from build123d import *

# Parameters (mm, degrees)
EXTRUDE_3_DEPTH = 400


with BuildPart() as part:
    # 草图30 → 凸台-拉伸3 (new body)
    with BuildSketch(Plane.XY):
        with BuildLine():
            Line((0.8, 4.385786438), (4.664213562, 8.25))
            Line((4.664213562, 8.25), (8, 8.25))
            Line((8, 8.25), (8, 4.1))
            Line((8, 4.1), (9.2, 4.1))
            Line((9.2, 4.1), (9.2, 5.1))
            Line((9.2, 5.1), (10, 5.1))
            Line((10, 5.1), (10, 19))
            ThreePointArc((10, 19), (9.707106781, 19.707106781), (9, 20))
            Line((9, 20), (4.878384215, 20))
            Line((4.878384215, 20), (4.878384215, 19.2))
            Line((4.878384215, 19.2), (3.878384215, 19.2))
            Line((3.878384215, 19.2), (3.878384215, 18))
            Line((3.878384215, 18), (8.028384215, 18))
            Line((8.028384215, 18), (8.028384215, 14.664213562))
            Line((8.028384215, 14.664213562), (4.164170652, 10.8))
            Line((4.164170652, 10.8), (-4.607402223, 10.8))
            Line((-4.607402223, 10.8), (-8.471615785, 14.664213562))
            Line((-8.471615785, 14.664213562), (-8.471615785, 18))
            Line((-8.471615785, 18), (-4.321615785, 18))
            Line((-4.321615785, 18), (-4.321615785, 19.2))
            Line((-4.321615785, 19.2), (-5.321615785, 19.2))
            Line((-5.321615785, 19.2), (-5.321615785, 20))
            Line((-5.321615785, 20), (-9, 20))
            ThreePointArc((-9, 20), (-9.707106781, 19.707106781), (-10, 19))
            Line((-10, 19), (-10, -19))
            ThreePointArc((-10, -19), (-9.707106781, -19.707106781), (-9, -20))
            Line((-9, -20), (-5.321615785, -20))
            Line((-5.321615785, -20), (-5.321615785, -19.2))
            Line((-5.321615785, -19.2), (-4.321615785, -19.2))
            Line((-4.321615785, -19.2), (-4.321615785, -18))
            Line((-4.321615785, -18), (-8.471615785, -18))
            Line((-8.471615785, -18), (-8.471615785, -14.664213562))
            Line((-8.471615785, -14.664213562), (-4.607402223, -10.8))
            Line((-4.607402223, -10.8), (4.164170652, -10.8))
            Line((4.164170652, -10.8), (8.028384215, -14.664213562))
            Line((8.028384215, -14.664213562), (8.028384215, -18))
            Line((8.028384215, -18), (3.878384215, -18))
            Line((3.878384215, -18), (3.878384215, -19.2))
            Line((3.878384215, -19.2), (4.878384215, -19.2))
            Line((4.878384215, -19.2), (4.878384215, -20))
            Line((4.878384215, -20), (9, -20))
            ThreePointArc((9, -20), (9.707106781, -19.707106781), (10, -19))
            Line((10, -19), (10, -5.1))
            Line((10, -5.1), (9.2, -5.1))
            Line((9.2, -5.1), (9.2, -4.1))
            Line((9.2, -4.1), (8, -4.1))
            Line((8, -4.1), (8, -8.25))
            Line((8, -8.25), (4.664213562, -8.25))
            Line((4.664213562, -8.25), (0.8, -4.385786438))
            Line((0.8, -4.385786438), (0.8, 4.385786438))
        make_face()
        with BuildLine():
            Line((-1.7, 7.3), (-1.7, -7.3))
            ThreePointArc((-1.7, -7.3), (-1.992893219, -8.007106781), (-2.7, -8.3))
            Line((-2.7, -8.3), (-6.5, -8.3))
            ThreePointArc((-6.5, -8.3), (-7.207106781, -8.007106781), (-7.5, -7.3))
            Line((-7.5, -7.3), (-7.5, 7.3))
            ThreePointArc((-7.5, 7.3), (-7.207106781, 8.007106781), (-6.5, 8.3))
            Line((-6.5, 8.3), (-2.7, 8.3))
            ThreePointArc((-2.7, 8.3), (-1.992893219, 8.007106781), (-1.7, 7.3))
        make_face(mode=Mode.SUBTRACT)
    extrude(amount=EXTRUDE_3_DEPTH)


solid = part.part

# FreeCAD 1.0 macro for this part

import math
import FreeCAD as App
import Part
import Sketcher

doc = App.newDocument("Part")
params = doc.addObject("Spreadsheet::Sheet", "Params")
for row, (alias, value) in enumerate([
    ("sketch1_radius", "1 mm"),
    ("sketch1_width", "1 mm"),
    ("sketch1_height", "38 mm"),
    ("sketch1_width2", "1.2 mm"),
    ("sketch1_width3", "0.8 mm"),
    ("pad1_length", "400 mm"),
], start=1):
    params.set(f"A{row}", alias)
    params.set(f"B{row}", "=" + value)
    params.setAlias(f"B{row}", alias)

body = doc.addObject("PartDesign::Body", "Body")

sketch1 = body.newObject("Sketcher::SketchObject", "Sketch")
sketch1.AttachmentSupport = (doc.getObject("XY_Plane"), [""])
sketch1.MapMode = "FlatFace"
sketch1.addGeometry(Part.LineSegment(App.Vector(0.8, 4.385786, 0), App.Vector(4.664214, 8.25, 0)), False)
sketch1.addGeometry(Part.LineSegment(App.Vector(4.664214, 8.25, 0), App.Vector(8, 8.25, 0)), False)
sketch1.addGeometry(Part.LineSegment(App.Vector(8, 8.25, 0), App.Vector(8, 4.1, 0)), False)
sketch1.addGeometry(Part.LineSegment(App.Vector(8, 4.1, 0), App.Vector(9.2, 4.1, 0)), False)
sketch1.addGeometry(Part.LineSegment(App.Vector(9.2, 4.1, 0), App.Vector(9.2, 5.1, 0)), False)
sketch1.addGeometry(Part.LineSegment(App.Vector(9.2, 5.1, 0), App.Vector(10, 5.1, 0)), False)
sketch1.addGeometry(Part.LineSegment(App.Vector(10, 5.1, 0), App.Vector(10, 19, 0)), False)
sketch1.addGeometry(Part.ArcOfCircle(Part.Circle(App.Vector(9, 19, 0), App.Vector(0, 0, 1), 1), math.radians(0), math.radians(90)), False)
sketch1.addGeometry(Part.LineSegment(App.Vector(9, 20, 0), App.Vector(4.878384, 20, 0)), False)
sketch1.addGeometry(Part.LineSegment(App.Vector(4.878384, 20, 0), App.Vector(4.878384, 19.2, 0)), False)
sketch1.addGeometry(Part.LineSegment(App.Vector(4.878384, 19.2, 0), App.Vector(3.878384, 19.2, 0)), False)
sketch1.addGeometry(Part.LineSegment(App.Vector(3.878384, 19.2, 0), App.Vector(3.878384, 18, 0)), False)
sketch1.addGeometry(Part.LineSegment(App.Vector(3.878384, 18, 0), App.Vector(8.028384, 18, 0)), False)
sketch1.addGeometry(Part.LineSegment(App.Vector(8.028384, 18, 0), App.Vector(8.028384, 14.664214, 0)), False)
sketch1.addGeometry(Part.LineSegment(App.Vector(8.028384, 14.664214, 0), App.Vector(4.164171, 10.8, 0)), False)
sketch1.addGeometry(Part.LineSegment(App.Vector(4.164171, 10.8, 0), App.Vector(-4.607402, 10.8, 0)), False)
sketch1.addGeometry(Part.LineSegment(App.Vector(-4.607402, 10.8, 0), App.Vector(-8.471616, 14.664214, 0)), False)
sketch1.addGeometry(Part.LineSegment(App.Vector(-8.471616, 14.664214, 0), App.Vector(-8.471616, 18, 0)), False)
sketch1.addGeometry(Part.LineSegment(App.Vector(-8.471616, 18, 0), App.Vector(-4.321616, 18, 0)), False)
sketch1.addGeometry(Part.LineSegment(App.Vector(-4.321616, 18, 0), App.Vector(-4.321616, 19.2, 0)), False)
sketch1.addGeometry(Part.LineSegment(App.Vector(-4.321616, 19.2, 0), App.Vector(-5.321616, 19.2, 0)), False)
sketch1.addGeometry(Part.LineSegment(App.Vector(-5.321616, 19.2, 0), App.Vector(-5.321616, 20, 0)), False)
sketch1.addGeometry(Part.LineSegment(App.Vector(-5.321616, 20, 0), App.Vector(-9, 20, 0)), False)
sketch1.addGeometry(Part.ArcOfCircle(Part.Circle(App.Vector(-9, 19, 0), App.Vector(0, 0, 1), 1), math.radians(90), math.radians(180)), False)
sketch1.addGeometry(Part.LineSegment(App.Vector(-10, 19, 0), App.Vector(-10, -19, 0)), False)
sketch1.addGeometry(Part.ArcOfCircle(Part.Circle(App.Vector(-9, -19, 0), App.Vector(0, 0, 1), 1), math.radians(-180), math.radians(-90)), False)
sketch1.addGeometry(Part.LineSegment(App.Vector(-9, -20, 0), App.Vector(-5.321616, -20, 0)), False)
sketch1.addGeometry(Part.LineSegment(App.Vector(-5.321616, -20, 0), App.Vector(-5.321616, -19.2, 0)), False)
sketch1.addGeometry(Part.LineSegment(App.Vector(-5.321616, -19.2, 0), App.Vector(-4.321616, -19.2, 0)), False)
sketch1.addGeometry(Part.LineSegment(App.Vector(-4.321616, -19.2, 0), App.Vector(-4.321616, -18, 0)), False)
sketch1.addGeometry(Part.LineSegment(App.Vector(-4.321616, -18, 0), App.Vector(-8.471616, -18, 0)), False)
sketch1.addGeometry(Part.LineSegment(App.Vector(-8.471616, -18, 0), App.Vector(-8.471616, -14.664214, 0)), False)
sketch1.addGeometry(Part.LineSegment(App.Vector(-8.471616, -14.664214, 0), App.Vector(-4.607402, -10.8, 0)), False)
sketch1.addGeometry(Part.LineSegment(App.Vector(-4.607402, -10.8, 0), App.Vector(4.164171, -10.8, 0)), False)
sketch1.addGeometry(Part.LineSegment(App.Vector(4.164171, -10.8, 0), App.Vector(8.028384, -14.664214, 0)), False)
sketch1.addGeometry(Part.LineSegment(App.Vector(8.028384, -14.664214, 0), App.Vector(8.028384, -18, 0)), False)
sketch1.addGeometry(Part.LineSegment(App.Vector(8.028384, -18, 0), App.Vector(3.878384, -18, 0)), False)
sketch1.addGeometry(Part.LineSegment(App.Vector(3.878384, -18, 0), App.Vector(3.878384, -19.2, 0)), False)
sketch1.addGeometry(Part.LineSegment(App.Vector(3.878384, -19.2, 0), App.Vector(4.878384, -19.2, 0)), False)
sketch1.addGeometry(Part.LineSegment(App.Vector(4.878384, -19.2, 0), App.Vector(4.878384, -20, 0)), False)
sketch1.addGeometry(Part.LineSegment(App.Vector(4.878384, -20, 0), App.Vector(9, -20, 0)), False)
sketch1.addGeometry(Part.ArcOfCircle(Part.Circle(App.Vector(9, -19, 0), App.Vector(0, 0, 1), 1), math.radians(-90), math.radians(0)), False)
sketch1.addGeometry(Part.LineSegment(App.Vector(10, -19, 0), App.Vector(10, -5.1, 0)), False)
sketch1.addGeometry(Part.LineSegment(App.Vector(10, -5.1, 0), App.Vector(9.2, -5.1, 0)), False)
sketch1.addGeometry(Part.LineSegment(App.Vector(9.2, -5.1, 0), App.Vector(9.2, -4.1, 0)), False)
sketch1.addGeometry(Part.LineSegment(App.Vector(9.2, -4.1, 0), App.Vector(8, -4.1, 0)), False)
sketch1.addGeometry(Part.LineSegment(App.Vector(8, -4.1, 0), App.Vector(8, -8.25, 0)), False)
sketch1.addGeometry(Part.LineSegment(App.Vector(8, -8.25, 0), App.Vector(4.664214, -8.25, 0)), False)
sketch1.addGeometry(Part.LineSegment(App.Vector(4.664214, -8.25, 0), App.Vector(0.8, -4.385786, 0)), False)
sketch1.addGeometry(Part.LineSegment(App.Vector(0.8, -4.385786, 0), App.Vector(0.8, 4.385786, 0)), False)
sketch1.addGeometry(Part.ArcOfCircle(Part.Circle(App.Vector(-2.7, 7.3, 0), App.Vector(0, 0, 1), 1), math.radians(0), math.radians(90)), False)
sketch1.addGeometry(Part.LineSegment(App.Vector(-1.7, 7.3, 0), App.Vector(-1.7, -7.3, 0)), False)
sketch1.addGeometry(Part.ArcOfCircle(Part.Circle(App.Vector(-2.7, -7.3, 0), App.Vector(0, 0, 1), 1), math.radians(-90), math.radians(0)), False)
sketch1.addGeometry(Part.LineSegment(App.Vector(-2.7, -8.3, 0), App.Vector(-6.5, -8.3, 0)), False)
sketch1.addGeometry(Part.ArcOfCircle(Part.Circle(App.Vector(-6.5, -7.3, 0), App.Vector(0, 0, 1), 1), math.radians(-180), math.radians(-90)), False)
sketch1.addGeometry(Part.LineSegment(App.Vector(-7.5, -7.3, 0), App.Vector(-7.5, 7.3, 0)), False)
sketch1.addGeometry(Part.ArcOfCircle(Part.Circle(App.Vector(-6.5, 7.3, 0), App.Vector(0, 0, 1), 1), math.radians(90), math.radians(180)), False)
sketch1.addGeometry(Part.LineSegment(App.Vector(-6.5, 8.3, 0), App.Vector(-2.7, 8.3, 0)), False)
sketch1.addConstraint(Sketcher.Constraint("Coincident", 0, 2, 1, 1))
sketch1.addConstraint(Sketcher.Constraint("Coincident", 1, 2, 2, 1))
sketch1.addConstraint(Sketcher.Constraint("Coincident", 2, 2, 3, 1))
sketch1.addConstraint(Sketcher.Constraint("Coincident", 3, 2, 4, 1))
sketch1.addConstraint(Sketcher.Constraint("Coincident", 4, 2, 5, 1))
sketch1.addConstraint(Sketcher.Constraint("Coincident", 5, 2, 6, 1))
sketch1.addConstraint(Sketcher.Constraint("Tangent", 6, 2, 7, 1))
sketch1.addConstraint(Sketcher.Constraint("Tangent", 7, 2, 8, 1))
sketch1.addConstraint(Sketcher.Constraint("Coincident", 8, 2, 9, 1))
sketch1.addConstraint(Sketcher.Constraint("Coincident", 9, 2, 10, 1))
sketch1.addConstraint(Sketcher.Constraint("Coincident", 10, 2, 11, 1))
sketch1.addConstraint(Sketcher.Constraint("Coincident", 11, 2, 12, 1))
sketch1.addConstraint(Sketcher.Constraint("Coincident", 12, 2, 13, 1))
sketch1.addConstraint(Sketcher.Constraint("Coincident", 13, 2, 14, 1))
sketch1.addConstraint(Sketcher.Constraint("Coincident", 14, 2, 15, 1))
sketch1.addConstraint(Sketcher.Constraint("Coincident", 15, 2, 16, 1))
sketch1.addConstraint(Sketcher.Constraint("Coincident", 16, 2, 17, 1))
sketch1.addConstraint(Sketcher.Constraint("Coincident", 17, 2, 18, 1))
sketch1.addConstraint(Sketcher.Constraint("Coincident", 18, 2, 19, 1))
sketch1.addConstraint(Sketcher.Constraint("Coincident", 19, 2, 20, 1))
sketch1.addConstraint(Sketcher.Constraint("Coincident", 20, 2, 21, 1))
sketch1.addConstraint(Sketcher.Constraint("Coincident", 21, 2, 22, 1))
sketch1.addConstraint(Sketcher.Constraint("Tangent", 22, 2, 23, 1))
sketch1.addConstraint(Sketcher.Constraint("Tangent", 23, 2, 24, 1))
sketch1.addConstraint(Sketcher.Constraint("Tangent", 24, 2, 25, 1))
sketch1.addConstraint(Sketcher.Constraint("Tangent", 25, 2, 26, 1))
sketch1.addConstraint(Sketcher.Constraint("Coincident", 26, 2, 27, 1))
sketch1.addConstraint(Sketcher.Constraint("Coincident", 27, 2, 28, 1))
sketch1.addConstraint(Sketcher.Constraint("Coincident", 28, 2, 29, 1))
sketch1.addConstraint(Sketcher.Constraint("Coincident", 29, 2, 30, 1))
sketch1.addConstraint(Sketcher.Constraint("Coincident", 30, 2, 31, 1))
sketch1.addConstraint(Sketcher.Constraint("Coincident", 31, 2, 32, 1))
sketch1.addConstraint(Sketcher.Constraint("Coincident", 32, 2, 33, 1))
sketch1.addConstraint(Sketcher.Constraint("Coincident", 33, 2, 34, 1))
sketch1.addConstraint(Sketcher.Constraint("Coincident", 34, 2, 35, 1))
sketch1.addConstraint(Sketcher.Constraint("Coincident", 35, 2, 36, 1))
sketch1.addConstraint(Sketcher.Constraint("Coincident", 36, 2, 37, 1))
sketch1.addConstraint(Sketcher.Constraint("Coincident", 37, 2, 38, 1))
sketch1.addConstraint(Sketcher.Constraint("Coincident", 38, 2, 39, 1))
sketch1.addConstraint(Sketcher.Constraint("Coincident", 39, 2, 40, 1))
sketch1.addConstraint(Sketcher.Constraint("Tangent", 40, 2, 41, 1))
sketch1.addConstraint(Sketcher.Constraint("Tangent", 41, 2, 42, 1))
sketch1.addConstraint(Sketcher.Constraint("Coincident", 42, 2, 43, 1))
sketch1.addConstraint(Sketcher.Constraint("Coincident", 43, 2, 44, 1))
sketch1.addConstraint(Sketcher.Constraint("Coincident", 44, 2, 45, 1))
sketch1.addConstraint(Sketcher.Constraint("Coincident", 45, 2, 46, 1))
sketch1.addConstraint(Sketcher.Constraint("Coincident", 46, 2, 47, 1))
sketch1.addConstraint(Sketcher.Constraint("Coincident", 47, 2, 48, 1))
sketch1.addConstraint(Sketcher.Constraint("Coincident", 48, 2, 49, 1))
sketch1.addConstraint(Sketcher.Constraint("Coincident", 49, 2, 0, 1))
sketch1.addConstraint(Sketcher.Constraint("Tangent", 50, 1, 51, 1))
sketch1.addConstraint(Sketcher.Constraint("Tangent", 51, 2, 52, 2))
sketch1.addConstraint(Sketcher.Constraint("Tangent", 52, 1, 53, 1))
sketch1.addConstraint(Sketcher.Constraint("Tangent", 53, 2, 54, 2))
sketch1.addConstraint(Sketcher.Constraint("Tangent", 54, 1, 55, 1))
sketch1.addConstraint(Sketcher.Constraint("Tangent", 55, 2, 56, 2))
sketch1.addConstraint(Sketcher.Constraint("Tangent", 56, 1, 57, 1))
sketch1.addConstraint(Sketcher.Constraint("Tangent", 57, 2, 50, 2))
sketch1.addConstraint(Sketcher.Constraint("Horizontal", 1))
sketch1.addConstraint(Sketcher.Constraint("Vertical", 2))
sketch1.addConstraint(Sketcher.Constraint("Horizontal", 3))
sketch1.addConstraint(Sketcher.Constraint("Vertical", 4))
sketch1.addConstraint(Sketcher.Constraint("Horizontal", 5))
sketch1.addConstraint(Sketcher.Constraint("Vertical", 6))
sketch1.addConstraint(Sketcher.Constraint("Horizontal", 8))
sketch1.addConstraint(Sketcher.Constraint("Vertical", 9))
sketch1.addConstraint(Sketcher.Constraint("Horizontal", 10))
sketch1.addConstraint(Sketcher.Constraint("Vertical", 11))
sketch1.addConstraint(Sketcher.Constraint("Horizontal", 12))
sketch1.addConstraint(Sketcher.Constraint("Vertical", 13))
sketch1.addConstraint(Sketcher.Constraint("Horizontal", 15))
sketch1.addConstraint(Sketcher.Constraint("Vertical", 17))
sketch1.addConstraint(Sketcher.Constraint("Horizontal", 18))
sketch1.addConstraint(Sketcher.Constraint("Vertical", 19))
sketch1.addConstraint(Sketcher.Constraint("Horizontal", 20))
sketch1.addConstraint(Sketcher.Constraint("Vertical", 21))
sketch1.addConstraint(Sketcher.Constraint("Horizontal", 22))
sketch1.addConstraint(Sketcher.Constraint("Vertical", 24))
sketch1.addConstraint(Sketcher.Constraint("Horizontal", 26))
sketch1.addConstraint(Sketcher.Constraint("Vertical", 27))
sketch1.addConstraint(Sketcher.Constraint("Horizontal", 28))
sketch1.addConstraint(Sketcher.Constraint("Vertical", 29))
sketch1.addConstraint(Sketcher.Constraint("Horizontal", 30))
sketch1.addConstraint(Sketcher.Constraint("Vertical", 31))
sketch1.addConstraint(Sketcher.Constraint("Horizontal", 33))
sketch1.addConstraint(Sketcher.Constraint("Vertical", 35))
sketch1.addConstraint(Sketcher.Constraint("Horizontal", 36))
sketch1.addConstraint(Sketcher.Constraint("Vertical", 37))
sketch1.addConstraint(Sketcher.Constraint("Horizontal", 38))
sketch1.addConstraint(Sketcher.Constraint("Vertical", 39))
sketch1.addConstraint(Sketcher.Constraint("Horizontal", 40))
sketch1.addConstraint(Sketcher.Constraint("Vertical", 42))
sketch1.addConstraint(Sketcher.Constraint("Horizontal", 43))
sketch1.addConstraint(Sketcher.Constraint("Vertical", 44))
sketch1.addConstraint(Sketcher.Constraint("Horizontal", 45))
sketch1.addConstraint(Sketcher.Constraint("Vertical", 46))
sketch1.addConstraint(Sketcher.Constraint("Horizontal", 47))
sketch1.addConstraint(Sketcher.Constraint("Vertical", 49))
sketch1.addConstraint(Sketcher.Constraint("Vertical", 51))
sketch1.addConstraint(Sketcher.Constraint("Horizontal", 53))
sketch1.addConstraint(Sketcher.Constraint("Vertical", 55))
sketch1.addConstraint(Sketcher.Constraint("Horizontal", 57))
sketch1.addConstraint(Sketcher.Constraint("Equal", 7, 23))
sketch1.addConstraint(Sketcher.Constraint("Equal", 23, 25))
sketch1.addConstraint(Sketcher.Constraint("Equal", 25, 41))
sketch1.addConstraint(Sketcher.Constraint("Equal", 41, 50))
sketch1.addConstraint(Sketcher.Constraint("Equal", 50, 52))
sketch1.addConstraint(Sketcher.Constraint("Equal", 52, 54))
sketch1.addConstraint(Sketcher.Constraint("Equal", 54, 56))
sketch1.addConstraint(Sketcher.Constraint("Symmetric", 7, 3, 25, 3, -1, 1))
sketch1.addConstraint(Sketcher.Constraint("Symmetric", 23, 3, 41, 3, -1, 1))
sketch1.addConstraint(Sketcher.Constraint("Symmetric", 21, 2, 26, 2, -1))
sketch1.addConstraint(Sketcher.Constraint("Symmetric", 19, 2, 28, 2, -1))
sketch1.addConstraint(Sketcher.Constraint("Symmetric", 17, 2, 30, 2, -1))
sketch1.addConstraint(Sketcher.Constraint("Symmetric", 15, 2, 32, 2, -1))
sketch1.addConstraint(Sketcher.Constraint("Symmetric", 13, 2, 34, 2, -1))
sketch1.addConstraint(Sketcher.Constraint("Symmetric", 11, 2, 36, 2, -1))
sketch1.addConstraint(Sketcher.Constraint("Symmetric", 9, 2, 38, 2, -1))
sketch1.addConstraint(Sketcher.Constraint("Symmetric", 4, 2, 43, 2, -1))
sketch1.addConstraint(Sketcher.Constraint("Symmetric", 2, 2, 45, 2, -1))
sketch1.addConstraint(Sketcher.Constraint("Symmetric", 0, 2, 47, 2, -1))
sketch1.addConstraint(Sketcher.Constraint("Parallel", 0, 14))
sketch1.addConstraint(Sketcher.Constraint("Perpendicular", 14, 16))
sketch1.addConstraint(Sketcher.Constraint("Perpendicular", 16, 32))
sketch1.addConstraint(Sketcher.Constraint("Perpendicular", 32, 34))
sketch1.addConstraint(Sketcher.Constraint("Parallel", 34, 48))
sketch1.addConstraint(Sketcher.Constraint("Horizontal", 13, 2, 16, 2))
sketch1.addConstraint(Sketcher.Constraint("Horizontal", 12, 2, 17, 2))
sketch1.addConstraint(Sketcher.Constraint("Horizontal", 10, 2, 19, 2))
sketch1.addConstraint(Sketcher.Constraint("Horizontal", 31, 2, 34, 2))
sketch1.addConstraint(Sketcher.Constraint("Equal", 12, 18))
sketch1.addConstraint(Sketcher.Constraint("Equal", 10, 20))
sketch1.addConstraint(Sketcher.Constraint("Equal", 36, 2))
sketch1.addConstraint(Sketcher.Constraint("Equal", 38, 4))
sketch1.addConstraint(Sketcher.Constraint("Equal", 43, 9))
sketch1.addConstraint(Sketcher.Constraint("Equal", 45, 11))
sketch1.addConstraint(Sketcher.Constraint("Equal", 47, 13))
sketch1.addConstraint(Sketcher.Constraint("Equal", 33, 49))
sketch1.addConstraint(Sketcher.Constraint("Equal", 0, 14))
sketch1.addConstraint(Sketcher.Constraint("Radius", 7, 1.0))
sketch1.addConstraint(Sketcher.Constraint("DistanceX", 10, 2, 10, 1, 1.0))
sketch1.addConstraint(Sketcher.Constraint("DistanceY", 24, 2, 24, 1, 38.0))
sketch1.addConstraint(Sketcher.Constraint("DistanceX", 3, 1, 3, 2, 1.2))
sketch1.addConstraint(Sketcher.Constraint("DistanceX", 5, 1, 5, 2, 0.8))
sketch1.addConstraint(Sketcher.Constraint("DistanceX", 53, 2, 53, 1, 3.8))
sketch1.addConstraint(Sketcher.Constraint("DistanceY", 6, 1, 6, 2, 13.9))
sketch1.addConstraint(Sketcher.Constraint("DistanceY", 51, 2, 51, 1, 14.6))
sketch1.addConstraint(Sketcher.Constraint("DistanceX", -1, 1, 7, 3, 9.0))
sketch1.addConstraint(Sketcher.Constraint("DistanceX", 12, 1, 12, 2, 4.15))
sketch1.addConstraint(Sketcher.Constraint("DistanceX", 50, 3, -1, 1, 2.7))
sketch1.addConstraint(Sketcher.Constraint("DistanceY", -1, 1, 50, 3, 7.3))
sketch1.addConstraint(Sketcher.Constraint("DistanceY", -1, 1, 14, 2, 10.8))
sketch1.addConstraint(Sketcher.Constraint("DistanceX", 1, 1, 1, 2, 3.335786))
sketch1.addConstraint(Sketcher.Constraint("DistanceX", 8, 2, 8, 1, 4.121616))
sketch1.setExpression("Constraints[139]", "Params.sketch1_radius")
sketch1.setExpression("Constraints[140]", "Params.sketch1_width")
sketch1.setExpression("Constraints[141]", "Params.sketch1_height")
sketch1.setExpression("Constraints[142]", "Params.sketch1_width2")
sketch1.setExpression("Constraints[143]", "Params.sketch1_width3")
pad1 = body.newObject("PartDesign::Pad", "Pad")
pad1.Profile = sketch1
pad1.setExpression("Length", "Params.pad1_length")

doc.recompute()
